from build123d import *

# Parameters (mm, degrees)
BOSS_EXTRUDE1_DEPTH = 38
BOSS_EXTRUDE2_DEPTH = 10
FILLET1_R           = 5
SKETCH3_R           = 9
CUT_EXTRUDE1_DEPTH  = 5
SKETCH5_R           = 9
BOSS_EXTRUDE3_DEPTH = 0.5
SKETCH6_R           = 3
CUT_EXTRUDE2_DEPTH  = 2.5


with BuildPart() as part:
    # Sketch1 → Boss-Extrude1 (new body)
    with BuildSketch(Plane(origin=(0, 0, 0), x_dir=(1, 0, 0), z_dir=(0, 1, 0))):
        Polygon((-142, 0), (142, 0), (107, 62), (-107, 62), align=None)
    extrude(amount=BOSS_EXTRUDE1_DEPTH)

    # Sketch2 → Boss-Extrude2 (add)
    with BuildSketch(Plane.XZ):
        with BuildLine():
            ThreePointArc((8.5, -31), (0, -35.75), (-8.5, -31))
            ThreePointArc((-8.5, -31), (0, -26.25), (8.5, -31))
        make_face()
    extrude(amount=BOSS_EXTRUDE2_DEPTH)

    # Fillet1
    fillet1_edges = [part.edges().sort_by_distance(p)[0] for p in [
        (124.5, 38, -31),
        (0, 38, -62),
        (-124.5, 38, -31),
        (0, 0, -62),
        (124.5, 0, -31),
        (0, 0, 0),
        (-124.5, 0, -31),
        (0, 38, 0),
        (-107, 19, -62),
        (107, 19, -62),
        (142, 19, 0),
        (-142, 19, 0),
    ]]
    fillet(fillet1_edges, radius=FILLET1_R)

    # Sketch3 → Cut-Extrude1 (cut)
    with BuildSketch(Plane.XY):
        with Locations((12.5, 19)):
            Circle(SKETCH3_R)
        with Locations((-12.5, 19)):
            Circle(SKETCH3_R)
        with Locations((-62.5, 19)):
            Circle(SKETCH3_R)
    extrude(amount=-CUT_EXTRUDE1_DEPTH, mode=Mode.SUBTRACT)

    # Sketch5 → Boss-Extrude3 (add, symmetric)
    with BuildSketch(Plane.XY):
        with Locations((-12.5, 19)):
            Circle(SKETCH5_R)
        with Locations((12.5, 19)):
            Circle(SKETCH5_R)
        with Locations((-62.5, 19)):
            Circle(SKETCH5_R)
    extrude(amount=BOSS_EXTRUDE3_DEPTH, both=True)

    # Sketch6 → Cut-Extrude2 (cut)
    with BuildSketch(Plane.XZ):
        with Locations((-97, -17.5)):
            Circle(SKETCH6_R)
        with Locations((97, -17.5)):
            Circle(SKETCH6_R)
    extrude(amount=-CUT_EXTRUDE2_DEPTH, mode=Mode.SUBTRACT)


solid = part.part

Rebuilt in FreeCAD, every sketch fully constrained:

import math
import FreeCAD as App
import Part
import Sketcher
from FreeCAD import Vector
Q = App.Units.Quantity


def edges_at(feature, points):
    """Names of the edges that pass closest to the given points."""
    edges = feature.Shape.Edges
    near = lambda p: min(range(len(edges)), key=lambda i: edges[i].distToShape(Part.Vertex(*p))[0])
    return sorted({f"Edge{near(p) + 1}" for p in points})


def add_polygon(sketch, points):
    """Adds a closed chain of lines whose ends are joined by coincident constraints."""
    first, n = sketch.GeometryCount, len(points)
    for a, b in zip(points, points[1:] + points[:1]):
        sketch.addGeometry(Part.LineSegment(App.Vector(*a, 0), App.Vector(*b, 0)), False)
    for i in range(n):
        sketch.addConstraint(Sketcher.Constraint("Coincident", first + i, 2, first + (i + 1) % n, 1))

doc = App.newDocument("Part")
body = doc.addObject("PartDesign::Body", "Body")

sketch1 = body.newObject("Sketcher::SketchObject", "Sketch")
sketch1.AttachmentSupport = (doc.getObject("XZ_Plane"), [""])
sketch1.MapMode = "FlatFace"
add_polygon(sketch1, [(-142, 0), (142, 0), (107, -62), (-107, -62)])
sketch1.addConstraint(Sketcher.Constraint("Horizontal", 0))
sketch1.addConstraint(Sketcher.Constraint("Horizontal", 2))
sketch1.addConstraint(Sketcher.Constraint("Symmetric", 0, 2, 3, 2, -1, 1))
sketch1.addConstraint(Sketcher.Constraint("Equal", 1, 3))
sketch1.addConstraint(Sketcher.Constraint("DistanceX", 0, 1, 0, 2, Q("284 mm")))
sketch1.addConstraint(Sketcher.Constraint("DistanceX", 2, 2, 2, 1, Q("214 mm")))
sketch1.addConstraint(Sketcher.Constraint("DistanceY", 1, 2, -1, 1, Q("62 mm")))
pad1 = body.newObject("PartDesign::Pad", "Pad")
pad1.Profile = sketch1
pad1.Length = 38
pad1.Reversed = True

sketch2 = body.newObject("Sketcher::SketchObject", "Sketch001")
sketch2.AttachmentSupport = (doc.getObject("XZ_Plane"), [""])
sketch2.MapMode = "FlatFace"
sketch2.addGeometry(Part.ArcOfCircle(Part.Circle(Vector(0, -26, 0), Vector(0, 0, 1), 10), math.radians(-148), math.radians(-32)), False)
sketch2.addGeometry(Part.ArcOfCircle(Part.Circle(Vector(0, -36, 0), Vector(0, 0, 1), 10), math.radians(32), math.radians(148)), False)
sketch2.addConstraint(Sketcher.Constraint("Coincident", 0, 1, 1, 2))
sketch2.addConstraint(Sketcher.Constraint("Coincident", 1, 1, 0, 2))
sketch2.addConstraint(Sketcher.Constraint("Equal", 0, 1))
sketch2.addConstraint(Sketcher.Constraint("Symmetric", 0, 1, 1, 1, -2))
sketch2.addConstraint(Sketcher.Constraint("DistanceY", 0, 1, -1, 1, Q("31 mm")))
sketch2.addConstraint(Sketcher.Constraint("DistanceX", 0, 1, 1, 1, Q("17 mm")))
sketch2.addConstraint(Sketcher.Constraint("Radius", 0, Q("9.980263 mm")))
pad2 = body.newObject("PartDesign::Pad", "Pad001")
pad2.Profile = sketch2
pad2.Length = 10
doc.recompute()

fillet = body.newObject("PartDesign::Fillet", "Fillet")
fillet.Base = (pad2, edges_at(pad2, [
    (124.5, 38, -31),
    (0, 38, -62),
    (-124.5, 38, -31),
    (0, 0, -62),
    (124.5, 0, -31),
    (0, 0, 0),
    (-124.5, 0, -31),
    (0, 38, 0),
    (-107, 19, -62),
    (107, 19, -62),
    (142, 19, 0),
    (-142, 19, 0),
]))
fillet.Radius = 5

sketch3 = body.newObject("Sketcher::SketchObject", "Sketch002")
sketch3.AttachmentSupport = (doc.getObject("XY_Plane"), [""])
sketch3.MapMode = "FlatFace"
sketch3.addGeometry(Part.Circle(Vector(12, 19, 0), Vector(0, 0, 1), 9), False)
sketch3.addGeometry(Part.Circle(Vector(-12, 19, 0), Vector(0, 0, 1), 9), False)
sketch3.addGeometry(Part.Circle(Vector(-62, 19, 0), Vector(0, 0, 1), 9), False)
sketch3.addConstraint(Sketcher.Constraint("Equal", 0, 1))
sketch3.addConstraint(Sketcher.Constraint("Equal", 1, 2))
sketch3.addConstraint(Sketcher.Constraint("Symmetric", 0, 3, 1, 3, -2))
sketch3.addConstraint(Sketcher.Constraint("Horizontal", 1, 3, 2, 3))
sketch3.addConstraint(Sketcher.Constraint("Diameter", 0, Q("18 mm")))
sketch3.addConstraint(Sketcher.Constraint("DistanceY", -1, 1, 0, 3, Q("19 mm")))
sketch3.addConstraint(Sketcher.Constraint("DistanceX", 1, 3, 0, 3, Q("25 mm")))
sketch3.addConstraint(Sketcher.Constraint("DistanceX", 2, 3, 1, 3, Q("50 mm")))
pocket1 = body.newObject("PartDesign::Pocket", "Pocket")
pocket1.Profile = sketch3
pocket1.Length = 5

sketch4 = body.newObject("Sketcher::SketchObject", "Sketch003")
sketch4.AttachmentSupport = (doc.getObject("XY_Plane"), [""])
sketch4.MapMode = "FlatFace"
sketch4.addGeometry(Part.Circle(Vector(-12, 19, 0), Vector(0, 0, 1), 9), False)
sketch4.addGeometry(Part.Circle(Vector(12, 19, 0), Vector(0, 0, 1), 9), False)
sketch4.addGeometry(Part.Circle(Vector(-62, 19, 0), Vector(0, 0, 1), 9), False)
sketch4.addConstraint(Sketcher.Constraint("Equal", 0, 1))
sketch4.addConstraint(Sketcher.Constraint("Equal", 1, 2))
sketch4.addConstraint(Sketcher.Constraint("Symmetric", 0, 3, 1, 3, -2))
sketch4.addConstraint(Sketcher.Constraint("Horizontal", 1, 3, 2, 3))
sketch4.addConstraint(Sketcher.Constraint("Diameter", 0, Q("18 mm")))
sketch4.addConstraint(Sketcher.Constraint("DistanceY", -1, 1, 0, 3, Q("19 mm")))
sketch4.addConstraint(Sketcher.Constraint("DistanceX", 0, 3, 1, 3, Q("25 mm")))
sketch4.addConstraint(Sketcher.Constraint("DistanceX", 2, 3, 0, 3, Q("50 mm")))
pad3 = body.newObject("PartDesign::Pad", "Pad002")
pad3.Profile = sketch4
pad3.Length = 1
pad3.Midplane = True

sketch5 = body.newObject("Sketcher::SketchObject", "Sketch004")
sketch5.AttachmentSupport = (doc.getObject("XZ_Plane"), [""])
sketch5.MapMode = "FlatFace"
sketch5.addGeometry(Part.Circle(Vector(-97, -17.5, 0), Vector(0, 0, 1), 3), False)
sketch5.addGeometry(Part.Circle(Vector(97, -17.5, 0), Vector(0, 0, 1), 3), False)
sketch5.addConstraint(Sketcher.Constraint("Equal", 0, 1))
sketch5.addConstraint(Sketcher.Constraint("Symmetric", 0, 3, 1, 3, -2))
sketch5.addConstraint(Sketcher.Constraint("Diameter", 0, Q("6 mm")))
sketch5.addConstraint(Sketcher.Constraint("DistanceX", 0, 3, -1, 1, Q("97 mm")))
sketch5.addConstraint(Sketcher.Constraint("DistanceY", 0, 3, -1, 1, Q("17.5 mm")))
pocket2 = body.newObject("PartDesign::Pocket", "Pocket001")
pocket2.Profile = sketch5
pocket2.Length = 2.5

doc.recompute()
